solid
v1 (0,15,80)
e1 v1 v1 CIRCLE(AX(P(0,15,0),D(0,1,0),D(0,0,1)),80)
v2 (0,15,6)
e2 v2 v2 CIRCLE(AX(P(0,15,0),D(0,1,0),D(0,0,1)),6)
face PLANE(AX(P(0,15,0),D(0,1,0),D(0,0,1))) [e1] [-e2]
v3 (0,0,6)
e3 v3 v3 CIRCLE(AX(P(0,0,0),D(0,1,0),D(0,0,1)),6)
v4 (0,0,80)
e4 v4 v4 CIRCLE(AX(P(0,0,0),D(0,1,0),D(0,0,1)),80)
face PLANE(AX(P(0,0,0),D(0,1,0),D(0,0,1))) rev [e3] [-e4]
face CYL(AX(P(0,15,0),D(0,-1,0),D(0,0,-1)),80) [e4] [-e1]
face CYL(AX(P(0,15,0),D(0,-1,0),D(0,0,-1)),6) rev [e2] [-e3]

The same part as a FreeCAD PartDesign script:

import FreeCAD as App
import Part
import Sketcher

doc = App.newDocument("Part")
body = doc.addObject("PartDesign::Body", "Body")

sketch1 = doc.addObject("Sketcher::SketchObject", "Sketch")
body.addObject(sketch1)
sketch1.AttachmentSupport = (doc.XZ_Plane, [""])
sketch1.MapMode = "FlatFace"
sketch1.addGeometry(Part.Circle(App.Vector(0, 0, 0), App.Vector(0, 0, 1), 80), False)
sketch1.addConstraint(Sketcher.Constraint("Coincident", 0, 3, -1, 1))
sketch1.addConstraint(Sketcher.Constraint("Diameter", 0, 160.0))
pad1 = doc.addObject("PartDesign::Pad", "Pad")
body.addObject(pad1)
pad1.Profile = sketch1
pad1.Length = 15
pad1.Reversed = True

sketch2 = doc.addObject("Sketcher::SketchObject", "Sketch001")
body.addObject(sketch2)
sketch2.AttachmentSupport = (doc.XZ_Plane, [""])
sketch2.MapMode = "FlatFace"
sketch2.addGeometry(Part.Circle(App.Vector(0, 0, 0), App.Vector(0, 0, 1), 6), False)
sketch2.addConstraint(Sketcher.Constraint("Coincident", 0, 3, -1, 1))
sketch2.addConstraint(Sketcher.Constraint("Diameter", 0, 12.0))
pocket1 = doc.addObject("PartDesign::Pocket", "Pocket")
body.addObject(pocket1)
pocket1.Profile = sketch2
pocket1.Length = 15

doc.recompute()
